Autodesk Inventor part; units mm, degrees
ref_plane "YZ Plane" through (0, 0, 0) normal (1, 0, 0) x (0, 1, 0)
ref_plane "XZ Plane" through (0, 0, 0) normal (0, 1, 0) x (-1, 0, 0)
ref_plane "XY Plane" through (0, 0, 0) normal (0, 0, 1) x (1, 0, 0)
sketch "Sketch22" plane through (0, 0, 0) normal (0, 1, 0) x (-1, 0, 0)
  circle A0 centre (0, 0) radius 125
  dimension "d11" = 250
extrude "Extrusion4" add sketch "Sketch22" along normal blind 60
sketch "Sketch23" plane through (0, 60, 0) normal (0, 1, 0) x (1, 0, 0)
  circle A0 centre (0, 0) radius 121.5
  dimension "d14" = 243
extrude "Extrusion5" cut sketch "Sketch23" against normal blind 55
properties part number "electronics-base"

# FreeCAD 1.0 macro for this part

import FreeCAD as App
import Part
import Sketcher

V = App.Vector

doc = App.newDocument("Part")
body = doc.addObject("PartDesign::Body", "Body")

sketch1 = body.newObject("Sketcher::SketchObject", "Sketch")
sketch1.AttachmentSupport = (doc.getObject("XZ_Plane"), [""])
sketch1.MapMode = "FlatFace"
sketch1.addGeometry(Part.Circle(V(0, 0, 0), V(0, 0, 1), 125), False)
sketch1.addConstraint(Sketcher.Constraint("Coincident", 0, 3, -1, 1))
sketch1.addConstraint(Sketcher.Constraint("Diameter", 0, 250.0))
pad1 = body.newObject("PartDesign::Pad", "Pad")
pad1.Profile = sketch1
pad1.Length = 60
pad1.Reversed = True

sketch2 = body.newObject("Sketcher::SketchObject", "Sketch001")
sketch2.AttachmentSupport = (doc.getObject("XZ_Plane"), [""])
sketch2.MapMode = "FlatFace"
sketch2.AttachmentOffset = App.Placement(V(0, 0, -60), App.Rotation())
sketch2.addGeometry(Part.Circle(V(0, 0, 0), V(0, 0, 1), 122), False)
sketch2.addConstraint(Sketcher.Constraint("Coincident", 0, 3, -1, 1))
sketch2.addConstraint(Sketcher.Constraint("Diameter", 0, 243.0))
pocket1 = body.newObject("PartDesign::Pocket", "Pocket")
pocket1.Profile = sketch2
pocket1.Length = 55
pocket1.Reversed = True

doc.recompute()
